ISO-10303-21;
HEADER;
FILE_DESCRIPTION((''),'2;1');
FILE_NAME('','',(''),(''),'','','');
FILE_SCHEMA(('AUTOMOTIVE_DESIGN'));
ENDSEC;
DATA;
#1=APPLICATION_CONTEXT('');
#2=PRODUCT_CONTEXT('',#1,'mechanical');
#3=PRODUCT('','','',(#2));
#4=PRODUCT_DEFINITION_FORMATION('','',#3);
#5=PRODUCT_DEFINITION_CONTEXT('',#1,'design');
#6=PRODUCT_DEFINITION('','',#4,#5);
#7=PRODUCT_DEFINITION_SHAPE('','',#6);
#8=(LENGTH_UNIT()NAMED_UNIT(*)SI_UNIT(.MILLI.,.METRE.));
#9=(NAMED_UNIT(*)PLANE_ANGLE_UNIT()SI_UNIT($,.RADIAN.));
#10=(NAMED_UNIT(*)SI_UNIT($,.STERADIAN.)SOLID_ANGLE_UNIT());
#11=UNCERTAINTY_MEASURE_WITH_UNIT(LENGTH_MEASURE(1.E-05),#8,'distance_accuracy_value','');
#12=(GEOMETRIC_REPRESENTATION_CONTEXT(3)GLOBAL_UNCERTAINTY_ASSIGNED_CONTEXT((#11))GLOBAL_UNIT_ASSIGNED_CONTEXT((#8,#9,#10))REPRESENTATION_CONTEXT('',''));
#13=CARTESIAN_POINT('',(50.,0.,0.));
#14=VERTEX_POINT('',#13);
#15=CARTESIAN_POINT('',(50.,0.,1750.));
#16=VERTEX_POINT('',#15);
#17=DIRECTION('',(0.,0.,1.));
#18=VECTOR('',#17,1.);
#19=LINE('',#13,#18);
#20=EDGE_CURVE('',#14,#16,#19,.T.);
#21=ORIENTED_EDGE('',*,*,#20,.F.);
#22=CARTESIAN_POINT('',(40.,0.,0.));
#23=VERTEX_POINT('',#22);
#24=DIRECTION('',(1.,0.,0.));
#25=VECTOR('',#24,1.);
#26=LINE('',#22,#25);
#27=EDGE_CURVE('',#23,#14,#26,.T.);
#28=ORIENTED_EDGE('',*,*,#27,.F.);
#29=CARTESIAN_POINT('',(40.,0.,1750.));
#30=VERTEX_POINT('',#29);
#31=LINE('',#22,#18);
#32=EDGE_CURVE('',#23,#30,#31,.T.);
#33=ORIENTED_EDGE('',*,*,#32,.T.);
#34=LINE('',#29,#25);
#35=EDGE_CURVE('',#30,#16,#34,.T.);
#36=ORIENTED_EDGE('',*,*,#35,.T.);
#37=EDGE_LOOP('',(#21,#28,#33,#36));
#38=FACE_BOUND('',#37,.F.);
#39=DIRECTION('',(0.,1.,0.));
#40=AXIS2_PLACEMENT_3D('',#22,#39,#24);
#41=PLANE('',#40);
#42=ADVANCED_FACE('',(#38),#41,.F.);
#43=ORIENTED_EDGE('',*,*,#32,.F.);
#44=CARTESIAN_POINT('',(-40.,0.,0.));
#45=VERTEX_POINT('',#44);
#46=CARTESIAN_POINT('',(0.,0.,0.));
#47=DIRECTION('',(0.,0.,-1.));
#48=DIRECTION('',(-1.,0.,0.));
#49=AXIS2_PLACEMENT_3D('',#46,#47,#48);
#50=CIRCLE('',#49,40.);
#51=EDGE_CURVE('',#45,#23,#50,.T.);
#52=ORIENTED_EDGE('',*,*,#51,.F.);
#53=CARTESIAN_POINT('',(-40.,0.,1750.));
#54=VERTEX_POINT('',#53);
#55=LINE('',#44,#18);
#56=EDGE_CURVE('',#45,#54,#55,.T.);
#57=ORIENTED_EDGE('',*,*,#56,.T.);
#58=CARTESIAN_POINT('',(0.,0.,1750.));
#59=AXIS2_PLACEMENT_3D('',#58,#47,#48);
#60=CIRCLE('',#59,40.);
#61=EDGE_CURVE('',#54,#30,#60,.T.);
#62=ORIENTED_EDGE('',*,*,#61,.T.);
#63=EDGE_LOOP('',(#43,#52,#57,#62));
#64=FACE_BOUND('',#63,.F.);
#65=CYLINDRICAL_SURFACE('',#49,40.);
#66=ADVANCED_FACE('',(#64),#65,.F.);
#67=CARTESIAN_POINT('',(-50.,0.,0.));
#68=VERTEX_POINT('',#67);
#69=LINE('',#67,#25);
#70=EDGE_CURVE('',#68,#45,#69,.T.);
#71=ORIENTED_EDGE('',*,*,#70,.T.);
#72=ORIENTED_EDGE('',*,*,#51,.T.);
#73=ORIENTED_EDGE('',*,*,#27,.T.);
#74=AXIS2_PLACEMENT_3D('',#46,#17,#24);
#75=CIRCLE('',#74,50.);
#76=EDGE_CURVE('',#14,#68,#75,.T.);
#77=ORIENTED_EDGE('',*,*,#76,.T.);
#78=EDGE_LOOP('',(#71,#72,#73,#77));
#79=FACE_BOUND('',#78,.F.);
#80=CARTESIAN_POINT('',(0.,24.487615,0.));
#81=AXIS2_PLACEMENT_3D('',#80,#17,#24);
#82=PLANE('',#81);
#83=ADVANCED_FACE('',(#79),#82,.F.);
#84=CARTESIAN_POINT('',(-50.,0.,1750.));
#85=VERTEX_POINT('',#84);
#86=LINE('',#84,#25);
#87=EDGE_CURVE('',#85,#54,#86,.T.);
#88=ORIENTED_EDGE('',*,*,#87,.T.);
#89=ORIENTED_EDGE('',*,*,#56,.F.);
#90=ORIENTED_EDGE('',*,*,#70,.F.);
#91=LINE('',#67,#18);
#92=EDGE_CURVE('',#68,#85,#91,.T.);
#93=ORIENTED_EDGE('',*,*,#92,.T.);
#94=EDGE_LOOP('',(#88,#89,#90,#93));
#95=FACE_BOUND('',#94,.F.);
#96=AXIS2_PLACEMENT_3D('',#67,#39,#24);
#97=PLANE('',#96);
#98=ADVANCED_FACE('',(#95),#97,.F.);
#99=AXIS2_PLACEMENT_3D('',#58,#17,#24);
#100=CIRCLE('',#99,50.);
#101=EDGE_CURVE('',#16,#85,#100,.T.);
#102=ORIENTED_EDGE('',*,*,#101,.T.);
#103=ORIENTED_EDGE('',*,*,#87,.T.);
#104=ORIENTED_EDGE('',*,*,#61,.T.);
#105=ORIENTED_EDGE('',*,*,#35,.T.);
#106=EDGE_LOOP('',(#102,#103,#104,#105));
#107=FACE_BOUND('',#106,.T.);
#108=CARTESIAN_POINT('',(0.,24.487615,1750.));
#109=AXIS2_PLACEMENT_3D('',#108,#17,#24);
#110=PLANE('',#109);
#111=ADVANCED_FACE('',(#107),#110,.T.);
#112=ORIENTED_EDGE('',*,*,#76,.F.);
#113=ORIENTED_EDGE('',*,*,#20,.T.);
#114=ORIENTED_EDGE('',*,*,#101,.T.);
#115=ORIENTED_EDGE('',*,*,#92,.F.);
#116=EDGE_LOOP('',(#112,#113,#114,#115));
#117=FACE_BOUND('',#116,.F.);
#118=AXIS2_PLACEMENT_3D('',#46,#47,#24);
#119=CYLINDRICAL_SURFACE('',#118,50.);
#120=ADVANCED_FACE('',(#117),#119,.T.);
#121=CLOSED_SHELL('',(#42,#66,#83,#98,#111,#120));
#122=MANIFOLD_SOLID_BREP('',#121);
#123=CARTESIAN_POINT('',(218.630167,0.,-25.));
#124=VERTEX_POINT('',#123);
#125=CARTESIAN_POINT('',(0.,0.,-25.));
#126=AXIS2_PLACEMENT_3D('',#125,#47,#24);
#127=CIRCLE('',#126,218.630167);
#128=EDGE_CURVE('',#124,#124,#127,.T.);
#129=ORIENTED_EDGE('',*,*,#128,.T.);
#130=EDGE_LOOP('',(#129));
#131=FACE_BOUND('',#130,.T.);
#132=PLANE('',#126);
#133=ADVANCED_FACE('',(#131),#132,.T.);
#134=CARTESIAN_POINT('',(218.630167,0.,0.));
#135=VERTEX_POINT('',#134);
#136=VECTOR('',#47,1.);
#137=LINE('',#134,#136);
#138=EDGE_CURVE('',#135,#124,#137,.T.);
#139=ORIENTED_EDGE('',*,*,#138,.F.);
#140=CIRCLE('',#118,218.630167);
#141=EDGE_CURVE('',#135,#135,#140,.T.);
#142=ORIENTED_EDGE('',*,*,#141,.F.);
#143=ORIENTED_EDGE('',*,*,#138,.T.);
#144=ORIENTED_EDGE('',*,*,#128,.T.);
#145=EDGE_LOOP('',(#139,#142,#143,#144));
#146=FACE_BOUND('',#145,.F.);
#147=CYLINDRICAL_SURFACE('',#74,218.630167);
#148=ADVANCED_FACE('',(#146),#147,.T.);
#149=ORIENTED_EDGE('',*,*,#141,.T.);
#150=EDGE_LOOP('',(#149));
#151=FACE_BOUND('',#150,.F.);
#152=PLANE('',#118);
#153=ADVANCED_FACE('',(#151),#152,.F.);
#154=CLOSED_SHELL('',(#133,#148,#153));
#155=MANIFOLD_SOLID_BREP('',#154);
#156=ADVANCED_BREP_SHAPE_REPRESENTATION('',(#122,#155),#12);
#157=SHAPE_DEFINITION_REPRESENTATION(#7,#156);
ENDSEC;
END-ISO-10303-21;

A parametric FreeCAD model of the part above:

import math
import FreeCAD as App
import Part
import Sketcher
Q = App.Units.Quantity

doc = App.newDocument("Part")
body = doc.addObject("PartDesign::Body", "Body")

# Sketch on XY plane
sketch1 = doc.addObject("Sketcher::SketchObject", "Sketch")
body.addObject(sketch1)
sketch1.AttachmentSupport = (doc.XY_Plane, [""])
sketch1.MapMode = "FlatFace"
sketch1.addGeometry([
    Part.LineSegment(App.Vector(40, 0, 0), App.Vector(50, 0, 0)),
    Part.ArcOfCircle(Part.Circle(App.Vector(0, 0, 0), App.Vector(0, 0, 1), 50), math.radians(0), math.radians(180)),
    Part.LineSegment(App.Vector(-50, 0, 0), App.Vector(-40, 0, 0)),
    Part.ArcOfCircle(Part.Circle(App.Vector(0, 0, 0), App.Vector(0, 0, 1), 40), math.radians(0), math.radians(180)),
], False)
sketch1.addConstraint([
    Sketcher.Constraint("Coincident", 0, 2, 1, 1),
    Sketcher.Constraint("Coincident", 1, 2, 2, 1),
    Sketcher.Constraint("Coincident", 2, 2, 3, 2),
    Sketcher.Constraint("Coincident", 3, 1, 0, 1),
    Sketcher.Constraint("Horizontal", 0),
    Sketcher.Constraint("Horizontal", 2),
    Sketcher.Constraint("Coincident", 1, 3, -1, 1),
    Sketcher.Constraint("Coincident", 3, 3, -1, 1),
    Sketcher.Constraint("PointOnObject", 0, 2, -1),
    Sketcher.Constraint("PointOnObject", 1, 2, -1),
    Sketcher.Constraint("Radius", 1, Q("50 mm")),
    Sketcher.Constraint("Radius", 3, Q("40 mm")),
])
pad1 = doc.addObject("PartDesign::Pad", "Pad")
body.addObject(pad1)
pad1.Profile = sketch1
pad1.Length = 1750
body2 = doc.addObject("PartDesign::Body", "Body001")

# Sketch on XY plane
sketch2 = doc.addObject("Sketcher::SketchObject", "Sketch001")
body2.addObject(sketch2)
sketch2.AttachmentSupport = (doc.getObject("XY_Plane001"), [""])
sketch2.MapMode = "FlatFace"
sketch2.addGeometry(Part.Circle(App.Vector(0, 0, 0), App.Vector(0, 0, 1), 219), False)
sketch2.addConstraint([
    Sketcher.Constraint("Coincident", 0, 3, -1, 1),
    Sketcher.Constraint("Diameter", 0, Q("437.260334 mm")),
])
pad2 = doc.addObject("PartDesign::Pad", "Pad001")
body2.addObject(pad2)
pad2.Profile = sketch2
pad2.Length = 25
pad2.Reversed = True

doc.recompute()
